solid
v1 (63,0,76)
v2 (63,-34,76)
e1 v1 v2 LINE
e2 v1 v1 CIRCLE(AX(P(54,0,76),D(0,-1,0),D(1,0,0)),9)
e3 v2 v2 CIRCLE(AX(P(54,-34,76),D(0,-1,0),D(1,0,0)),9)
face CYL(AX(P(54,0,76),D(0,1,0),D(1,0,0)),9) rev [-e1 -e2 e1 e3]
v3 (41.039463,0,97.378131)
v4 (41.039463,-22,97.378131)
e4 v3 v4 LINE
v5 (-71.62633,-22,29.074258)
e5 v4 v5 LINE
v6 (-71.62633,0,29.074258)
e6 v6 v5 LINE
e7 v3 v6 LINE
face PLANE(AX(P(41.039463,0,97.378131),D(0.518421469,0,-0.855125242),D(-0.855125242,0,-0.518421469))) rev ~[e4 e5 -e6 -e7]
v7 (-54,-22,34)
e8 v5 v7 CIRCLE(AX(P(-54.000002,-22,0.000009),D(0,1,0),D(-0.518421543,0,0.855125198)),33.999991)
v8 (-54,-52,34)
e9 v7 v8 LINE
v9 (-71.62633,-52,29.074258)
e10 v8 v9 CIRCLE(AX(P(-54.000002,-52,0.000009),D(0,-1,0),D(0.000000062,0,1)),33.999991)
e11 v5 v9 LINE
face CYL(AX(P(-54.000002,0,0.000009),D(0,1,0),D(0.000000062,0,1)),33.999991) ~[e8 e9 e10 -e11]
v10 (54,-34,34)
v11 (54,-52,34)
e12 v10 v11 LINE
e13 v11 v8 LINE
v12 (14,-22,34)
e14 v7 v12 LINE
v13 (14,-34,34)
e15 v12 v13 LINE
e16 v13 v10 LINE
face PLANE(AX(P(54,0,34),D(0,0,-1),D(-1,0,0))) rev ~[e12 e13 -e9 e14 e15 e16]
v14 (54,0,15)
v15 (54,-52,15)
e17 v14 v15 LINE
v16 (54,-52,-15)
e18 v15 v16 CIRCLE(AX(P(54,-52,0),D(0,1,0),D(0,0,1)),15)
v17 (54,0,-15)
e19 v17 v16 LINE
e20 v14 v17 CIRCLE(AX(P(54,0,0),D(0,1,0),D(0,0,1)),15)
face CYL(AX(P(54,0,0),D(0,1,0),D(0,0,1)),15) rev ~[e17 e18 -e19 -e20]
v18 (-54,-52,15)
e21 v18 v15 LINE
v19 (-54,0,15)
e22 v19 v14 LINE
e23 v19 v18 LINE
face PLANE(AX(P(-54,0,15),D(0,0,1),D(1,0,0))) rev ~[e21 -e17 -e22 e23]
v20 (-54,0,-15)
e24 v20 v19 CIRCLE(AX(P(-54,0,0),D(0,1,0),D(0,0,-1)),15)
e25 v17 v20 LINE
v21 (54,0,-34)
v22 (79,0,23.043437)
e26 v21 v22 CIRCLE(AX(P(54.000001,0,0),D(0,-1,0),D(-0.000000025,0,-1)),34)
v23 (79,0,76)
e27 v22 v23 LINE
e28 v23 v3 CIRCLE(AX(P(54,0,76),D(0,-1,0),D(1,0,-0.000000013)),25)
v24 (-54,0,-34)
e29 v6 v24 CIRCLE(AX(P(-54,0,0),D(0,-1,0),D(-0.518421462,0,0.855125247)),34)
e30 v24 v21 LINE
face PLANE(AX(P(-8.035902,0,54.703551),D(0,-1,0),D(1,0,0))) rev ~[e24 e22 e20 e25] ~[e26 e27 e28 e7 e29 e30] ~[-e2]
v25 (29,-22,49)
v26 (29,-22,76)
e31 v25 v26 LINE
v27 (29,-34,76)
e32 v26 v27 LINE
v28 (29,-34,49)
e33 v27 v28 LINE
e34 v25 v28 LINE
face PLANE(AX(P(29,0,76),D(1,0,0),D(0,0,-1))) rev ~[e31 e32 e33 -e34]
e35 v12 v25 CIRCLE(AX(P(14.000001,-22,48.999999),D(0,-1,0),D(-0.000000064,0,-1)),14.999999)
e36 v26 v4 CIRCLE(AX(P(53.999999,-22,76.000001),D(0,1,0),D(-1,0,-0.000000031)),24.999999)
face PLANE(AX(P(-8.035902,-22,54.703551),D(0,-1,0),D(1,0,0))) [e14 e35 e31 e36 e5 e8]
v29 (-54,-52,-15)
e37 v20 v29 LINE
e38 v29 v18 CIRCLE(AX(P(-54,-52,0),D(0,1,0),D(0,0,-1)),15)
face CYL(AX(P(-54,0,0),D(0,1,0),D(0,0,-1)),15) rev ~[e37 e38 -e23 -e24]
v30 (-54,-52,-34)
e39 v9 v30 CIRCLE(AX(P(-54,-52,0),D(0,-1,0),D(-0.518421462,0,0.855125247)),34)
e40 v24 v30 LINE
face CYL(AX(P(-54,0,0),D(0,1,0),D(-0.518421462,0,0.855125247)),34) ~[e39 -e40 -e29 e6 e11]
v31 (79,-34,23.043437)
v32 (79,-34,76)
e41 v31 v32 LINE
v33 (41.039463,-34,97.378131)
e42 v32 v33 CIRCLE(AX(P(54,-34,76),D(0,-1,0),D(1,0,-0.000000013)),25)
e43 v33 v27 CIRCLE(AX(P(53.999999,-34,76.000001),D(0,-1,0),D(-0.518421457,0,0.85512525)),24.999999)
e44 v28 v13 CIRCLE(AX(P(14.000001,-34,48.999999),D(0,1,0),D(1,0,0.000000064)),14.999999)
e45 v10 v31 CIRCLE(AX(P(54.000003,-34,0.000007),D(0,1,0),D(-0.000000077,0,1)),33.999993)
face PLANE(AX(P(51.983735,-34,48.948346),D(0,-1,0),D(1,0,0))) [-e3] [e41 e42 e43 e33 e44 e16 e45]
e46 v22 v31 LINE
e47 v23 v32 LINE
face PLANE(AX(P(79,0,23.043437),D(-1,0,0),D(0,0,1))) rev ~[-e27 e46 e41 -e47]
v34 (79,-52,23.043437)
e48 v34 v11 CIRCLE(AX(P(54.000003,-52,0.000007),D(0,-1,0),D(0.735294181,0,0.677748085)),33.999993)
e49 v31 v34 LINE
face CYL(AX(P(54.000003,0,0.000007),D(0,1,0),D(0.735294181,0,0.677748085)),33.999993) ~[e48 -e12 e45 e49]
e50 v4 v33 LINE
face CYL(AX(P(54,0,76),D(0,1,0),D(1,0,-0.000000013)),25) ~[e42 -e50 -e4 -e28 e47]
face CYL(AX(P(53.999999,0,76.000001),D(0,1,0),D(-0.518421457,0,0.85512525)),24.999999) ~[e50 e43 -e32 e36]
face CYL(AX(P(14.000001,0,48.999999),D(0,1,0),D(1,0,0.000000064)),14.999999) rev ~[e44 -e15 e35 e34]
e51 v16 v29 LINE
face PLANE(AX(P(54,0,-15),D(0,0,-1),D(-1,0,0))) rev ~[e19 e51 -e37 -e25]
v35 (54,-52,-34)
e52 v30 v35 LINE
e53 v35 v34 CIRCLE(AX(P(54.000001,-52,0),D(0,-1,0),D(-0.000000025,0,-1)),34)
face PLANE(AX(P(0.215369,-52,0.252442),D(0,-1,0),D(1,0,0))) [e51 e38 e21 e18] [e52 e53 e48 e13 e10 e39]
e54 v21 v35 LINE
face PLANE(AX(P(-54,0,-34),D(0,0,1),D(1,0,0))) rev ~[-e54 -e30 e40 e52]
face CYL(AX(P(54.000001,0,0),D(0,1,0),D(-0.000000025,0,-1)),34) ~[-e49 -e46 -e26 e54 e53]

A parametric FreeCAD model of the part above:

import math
import FreeCAD as App
import Part
import Sketcher

V = App.Vector

doc = App.newDocument("Part")
body = doc.addObject("PartDesign::Body", "Body")

# Sketch on XZ plane
sketch1 = body.newObject("Sketcher::SketchObject", "Sketch")
sketch1.AttachmentSupport = (doc.getObject("XZ_Plane"), [""])
sketch1.MapMode = "FlatFace"
sketch1.addGeometry([
    Part.ArcOfCircle(Part.Circle(V(-54.000002, 0.000009, 0), V(0, 0, 1), 33.999991), math.radians(89.999996), math.radians(121.226431)),  # 0
    Part.ArcOfCircle(Part.Circle(V(-54, 0, 0), V(0, 0, 1), 34), math.radians(121.226426), math.radians(270.000001)),  # 1
    Part.LineSegment(V(-54, -34, 0), V(54, -34, 0)),  # 2
    Part.ArcOfCircle(Part.Circle(V(54.000001, 0, 0), V(0, 0, 1), 34), math.radians(-90.000001), math.radians(42.667927)),  # 3
    Part.ArcOfCircle(Part.Circle(V(54.000003, 0.000007, 0), V(0, 0, 1), 33.999993), math.radians(42.66792), math.radians(90.000004)),  # 4
    Part.LineSegment(V(54, 34, 0), V(-54, 34, 0)),  # 5
    Part.LineSegment(V(54, -15, 0), V(-54, -15, 0)),  # 6
    Part.ArcOfCircle(Part.Circle(V(-54, 0, 0), V(0, 0, 1), 15), math.radians(90), math.radians(270)),  # 7
    Part.LineSegment(V(-54, 15, 0), V(54, 15, 0)),  # 8
    Part.ArcOfCircle(Part.Circle(V(54, 0, 0), V(0, 0, 1), 15), math.radians(-90), math.radians(90)),  # 9
], False)
sketch1.addConstraint([
    Sketcher.Constraint("Tangent", 0, 2, 1, 1),
    Sketcher.Constraint("Tangent", 1, 2, 2, 1),
    Sketcher.Constraint("Tangent", 2, 2, 3, 1),
    Sketcher.Constraint("Tangent", 3, 2, 4, 1),
    Sketcher.Constraint("Tangent", 4, 2, 5, 1),
    Sketcher.Constraint("Tangent", 5, 2, 0, 1),
    Sketcher.Constraint("Tangent", 6, 2, 7, 2),
    Sketcher.Constraint("Tangent", 7, 1, 8, 1),
    Sketcher.Constraint("Tangent", 8, 2, 9, 2),
    Sketcher.Constraint("Tangent", 9, 1, 6, 1),
    Sketcher.Constraint("Horizontal", 2),
    Sketcher.Constraint("Horizontal", 5),
    Sketcher.Constraint("Horizontal", 6),
    Sketcher.Constraint("Horizontal", 8),
    Sketcher.Constraint("Coincident", 7, 3, 0, 3),
    Sketcher.Constraint("Coincident", 9, 3, 3, 3),
    Sketcher.Constraint("Equal", 1, 3),
    Sketcher.Constraint("Symmetric", 0, 3, 3, 3, -1, 1),
    Sketcher.Constraint("Radius", 1, 34.0),
    Sketcher.Constraint("Radius", 7, 15.0),
    Sketcher.Constraint("DistanceX", 2, 1, 2, 2, 108.0),
    Sketcher.Constraint("DistanceX", -1, 1, 3, 2, 79.0),
    Sketcher.Constraint("DistanceX", 0, 2, -1, 1, 71.62633),
])
pad1 = body.newObject("PartDesign::Pad", "Pad")
pad1.Profile = sketch1
pad1.Length = 52

# Sketch on XZ plane
sketch2 = body.newObject("Sketcher::SketchObject", "Sketch001")
sketch2.AttachmentSupport = (doc.getObject("XZ_Plane"), [""])
sketch2.MapMode = "FlatFace"
sketch2.addGeometry([
    Part.ArcOfCircle(Part.Circle(V(-54.000002, 0.000009, 0), V(0, 0, 1), 33.999991), math.radians(89.999996), math.radians(121.226431)),  # 0
    Part.LineSegment(V(-54, 34, 0), V(14, 34, 0)),  # 1
    Part.ArcOfCircle(Part.Circle(V(14.000001, 48.999999, 0), V(0, 0, 1), 14.999999), math.radians(-90.000004), math.radians(0.000004)),  # 2
    Part.LineSegment(V(29, 49, 0), V(29, 76, 0)),  # 3
    Part.ArcOfCircle(Part.Circle(V(53.999999, 76.000001, 0), V(0, 0, 1), 24.999999), math.radians(121.226425), math.radians(180.000002)),  # 4
    Part.LineSegment(V(41.039463, 97.378131, 0), V(-71.62633, 29.074258, 0)),  # 5
], False)
sketch2.addConstraint([
    Sketcher.Constraint("Tangent", 0, 1, 1, 1),
    Sketcher.Constraint("Tangent", 1, 2, 2, 1),
    Sketcher.Constraint("Tangent", 2, 2, 3, 1),
    Sketcher.Constraint("Tangent", 3, 2, 4, 2),
    Sketcher.Constraint("Tangent", 4, 1, 5, 1),
    Sketcher.Constraint("Tangent", 5, 2, 0, 2),
    Sketcher.Constraint("Horizontal", 1),
    Sketcher.Constraint("Vertical", 3),
    Sketcher.Constraint("Radius", 2, 14.999999),
    Sketcher.Constraint("Radius", 4, 24.999999),
    Sketcher.Constraint("DistanceX", 1, 1, 1, 2, 68.0),
    Sketcher.Constraint("DistanceY", 3, 1, 3, 2, 27.0),
    Sketcher.Constraint("DistanceX", -1, 1, 2, 3, 14.000001),
    Sketcher.Constraint("DistanceY", -1, 1, 2, 3, 48.999999),
    Sketcher.Constraint("Radius", 0, 33.999991),
])
pad2 = body.newObject("PartDesign::Pad", "Pad001")
pad2.Profile = sketch2
pad2.Length = 22

# Sketch on XZ plane
sketch3 = body.newObject("Sketcher::SketchObject", "Sketch002")
sketch3.AttachmentSupport = (doc.getObject("XZ_Plane"), [""])
sketch3.MapMode = "FlatFace"
sketch3.addGeometry([
    Part.ArcOfCircle(Part.Circle(V(14.000001, 48.999999, 0), V(0, 0, 1), 14.999999), math.radians(-90.000004), math.radians(0.000004)),  # 0
    Part.LineSegment(V(14, 34, 0), V(54, 34, 0)),  # 1
    Part.ArcOfCircle(Part.Circle(V(54.000003, 0.000007, 0), V(0, 0, 1), 33.999993), math.radians(42.66792), math.radians(90.000004)),  # 2
    Part.LineSegment(V(79, 23.043437, 0), V(79, 76, 0)),  # 3
    Part.ArcOfCircle(Part.Circle(V(54, 76, 0), V(0, 0, 1), 25), math.radians(-0.000001), math.radians(121.226427)),  # 4
    Part.ArcOfCircle(Part.Circle(V(53.999999, 76.000001, 0), V(0, 0, 1), 24.999999), math.radians(121.226425), math.radians(180.000002)),  # 5
    Part.LineSegment(V(29, 76, 0), V(29, 49, 0)),  # 6
    Part.Circle(V(54, 76, 0), V(0, 0, 1), 9),  # 7
], False)
sketch3.addConstraint([
    Sketcher.Constraint("Tangent", 0, 1, 1, 1),
    Sketcher.Constraint("Tangent", 1, 2, 2, 2),
    Sketcher.Constraint("Coincident", 2, 1, 3, 1),
    Sketcher.Constraint("Tangent", 3, 2, 4, 1),
    Sketcher.Constraint("Tangent", 4, 2, 5, 1),
    Sketcher.Constraint("Tangent", 5, 2, 6, 1),
    Sketcher.Constraint("Tangent", 6, 2, 0, 2),
    Sketcher.Constraint("Horizontal", 1),
    Sketcher.Constraint("Vertical", 3),
    Sketcher.Constraint("Vertical", 6),
    Sketcher.Constraint("Coincident", 7, 3, 4, 3),
    Sketcher.Constraint("Equal", 4, 5),
    Sketcher.Constraint("Vertical", 7, 3, 1, 2),
    Sketcher.Constraint("Diameter", 7, 18.0),
    Sketcher.Constraint("Radius", 0, 14.999999),
    Sketcher.Constraint("Radius", 4, 25.0),
    Sketcher.Constraint("DistanceY", 6, 2, 6, 1, 27.0),
    Sketcher.Constraint("DistanceX", -1, 1, 0, 3, 14.000001),
    Sketcher.Constraint("DistanceY", -1, 1, 0, 3, 48.999999),
    Sketcher.Constraint("Radius", 2, 33.999993),
    Sketcher.Constraint("DistanceY", -1, 1, 4, 2, 97.378131),
])
pad3 = body.newObject("PartDesign::Pad", "Pad002")
pad3.Profile = sketch3
pad3.Length = 34

doc.recompute()
